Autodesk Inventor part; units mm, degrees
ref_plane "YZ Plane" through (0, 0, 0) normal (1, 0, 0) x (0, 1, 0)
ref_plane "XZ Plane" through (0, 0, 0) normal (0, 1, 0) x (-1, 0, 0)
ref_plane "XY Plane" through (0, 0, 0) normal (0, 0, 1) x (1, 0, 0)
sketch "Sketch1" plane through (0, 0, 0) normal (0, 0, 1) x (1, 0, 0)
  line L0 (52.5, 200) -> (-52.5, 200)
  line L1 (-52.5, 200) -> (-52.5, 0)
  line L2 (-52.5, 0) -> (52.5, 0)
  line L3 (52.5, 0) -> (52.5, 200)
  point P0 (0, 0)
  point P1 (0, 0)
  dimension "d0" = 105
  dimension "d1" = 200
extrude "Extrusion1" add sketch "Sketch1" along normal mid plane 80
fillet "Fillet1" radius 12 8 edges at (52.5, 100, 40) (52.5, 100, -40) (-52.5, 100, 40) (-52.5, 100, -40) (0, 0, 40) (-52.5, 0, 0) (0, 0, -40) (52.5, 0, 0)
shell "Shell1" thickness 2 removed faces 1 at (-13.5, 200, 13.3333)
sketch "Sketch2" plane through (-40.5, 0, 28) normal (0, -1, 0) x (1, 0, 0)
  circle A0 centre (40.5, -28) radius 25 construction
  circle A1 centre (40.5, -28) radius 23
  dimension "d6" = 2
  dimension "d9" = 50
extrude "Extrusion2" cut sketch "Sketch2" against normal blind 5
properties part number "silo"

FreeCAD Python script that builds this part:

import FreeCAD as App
import Part
import Sketcher
Q = App.Units.Quantity


def edges_at(feature, points):
    """Names of the edges that pass closest to the given points."""
    edges = feature.Shape.Edges
    near = lambda p: min(range(len(edges)), key=lambda i: edges[i].distToShape(Part.Vertex(*p))[0])
    return sorted({f"Edge{near(p) + 1}" for p in points})


def faces_at(feature, points):
    """Names of the faces that lie closest to the given points."""
    faces = feature.Shape.Faces
    near = lambda p: min(range(len(faces)), key=lambda i: faces[i].distToShape(Part.Vertex(*p))[0])
    return sorted({f"Face{near(p) + 1}" for p in points})


def add_polygon(sketch, points):
    """Adds a closed chain of lines whose ends are joined by coincident constraints."""
    first, n = sketch.GeometryCount, len(points)
    for a, b in zip(points, points[1:] + points[:1]):
        sketch.addGeometry(Part.LineSegment(App.Vector(*a, 0), App.Vector(*b, 0)), False)
    for i in range(n):
        sketch.addConstraint(Sketcher.Constraint("Coincident", first + i, 2, first + (i + 1) % n, 1))

doc = App.newDocument("Part")
body = doc.addObject("PartDesign::Body", "Body")

# Sketch on XY plane
sketch1 = body.newObject("Sketcher::SketchObject", "Sketch")
sketch1.AttachmentSupport = (doc.getObject("XY_Plane"), [""])
sketch1.MapMode = "FlatFace"
add_polygon(sketch1, [(52, 0), (52, 200), (-52, 200), (-52, 0)])  # lines 0-3
sketch1.addConstraint(Sketcher.Constraint("Vertical", 0))
sketch1.addConstraint(Sketcher.Constraint("Horizontal", 1))
sketch1.addConstraint(Sketcher.Constraint("Vertical", 2))
sketch1.addConstraint(Sketcher.Constraint("Horizontal", 3))
sketch1.addConstraint(Sketcher.Constraint("Symmetric", 2, 2, 3, 2, -1, 1))
sketch1.addConstraint(Sketcher.Constraint("DistanceX", 1, 2, 1, 1, Q("105 mm")))
sketch1.addConstraint(Sketcher.Constraint("DistanceY", 0, 1, 0, 2, Q("200 mm")))
pad1 = body.newObject("PartDesign::Pad", "Pad")
pad1.Profile = sketch1
pad1.Length = 80
pad1.Midplane = True
doc.recompute()

fillet = body.newObject("PartDesign::Fillet", "Fillet")
fillet.Base = (pad1, edges_at(pad1, [
    (52.5, 100, 40),
    (52.5, 100, -40),
    (-52.5, 100, 40),
    (-52.5, 100, -40),
    (0, 0, 40),
    (-52.5, 0, 0),
    (0, 0, -40),
    (52.5, 0, 0),
]))
fillet.Radius = 12
doc.recompute()

thickness = body.newObject("PartDesign::Thickness", "Thickness")
thickness.Base = (fillet, faces_at(fillet, [(-13.5, 200, 13.333)]))
thickness.Value = 2
thickness.Reversed = True
thickness.Join = "Intersection"

# Sketch on XZ plane
sketch2 = body.newObject("Sketcher::SketchObject", "Sketch001")
sketch2.AttachmentSupport = (doc.getObject("XZ_Plane"), [""])
sketch2.MapMode = "FlatFace"
sketch2.addGeometry(Part.Circle(App.Vector(0, 0, 0), App.Vector(0, 0, 1), 23), False)
sketch2.addConstraint(Sketcher.Constraint("Coincident", 0, 3, -1, 1))
sketch2.addConstraint(Sketcher.Constraint("Diameter", 0, Q("46 mm")))
pocket1 = body.newObject("PartDesign::Pocket", "Pocket")
pocket1.Profile = sketch2
pocket1.Length = 5

doc.recompute()
